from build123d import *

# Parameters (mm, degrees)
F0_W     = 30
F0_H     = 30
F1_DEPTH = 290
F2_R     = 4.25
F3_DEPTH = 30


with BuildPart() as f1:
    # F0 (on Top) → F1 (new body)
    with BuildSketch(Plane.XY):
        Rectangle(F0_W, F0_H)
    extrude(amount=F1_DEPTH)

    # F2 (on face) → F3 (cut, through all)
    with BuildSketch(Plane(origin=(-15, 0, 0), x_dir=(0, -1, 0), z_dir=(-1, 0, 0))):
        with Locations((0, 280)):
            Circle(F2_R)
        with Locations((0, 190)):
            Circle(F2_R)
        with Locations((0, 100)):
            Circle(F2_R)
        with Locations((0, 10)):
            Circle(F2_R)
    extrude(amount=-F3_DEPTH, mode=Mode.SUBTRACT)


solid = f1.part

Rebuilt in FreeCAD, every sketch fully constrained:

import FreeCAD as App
import Part
import Sketcher
from FreeCAD import Vector


def add_polygon(sketch, points):
    """Adds a closed chain of lines whose ends are joined by coincident constraints."""
    first, n = sketch.GeometryCount, len(points)
    for a, b in zip(points, points[1:] + points[:1]):
        sketch.addGeometry(Part.LineSegment(App.Vector(*a, 0), App.Vector(*b, 0)), False)
    for i in range(n):
        sketch.addConstraint(Sketcher.Constraint("Coincident", first + i, 2, first + (i + 1) % n, 1))

doc = App.newDocument("Part")
body = doc.addObject("PartDesign::Body", "Body")

# Sketch on XY plane
sketch1 = doc.addObject("Sketcher::SketchObject", "Sketch")
body.addObject(sketch1)
sketch1.AttachmentSupport = (doc.XY_Plane, [""])
sketch1.MapMode = "FlatFace"
add_polygon(sketch1, [(-15, 15), (-15, -15), (15, -15), (15, 15)])  # lines 0-3
sketch1.addConstraint(Sketcher.Constraint("Vertical", 0))
sketch1.addConstraint(Sketcher.Constraint("Horizontal", 1))
sketch1.addConstraint(Sketcher.Constraint("Vertical", 2))
sketch1.addConstraint(Sketcher.Constraint("Horizontal", 3))
sketch1.addConstraint(Sketcher.Constraint("Symmetric", 0, 2, 2, 2, -1, 1))
sketch1.addConstraint(Sketcher.Constraint("Equal", 3, 0))
sketch1.addConstraint(Sketcher.Constraint("DistanceX", 1, 1, 1, 2, 30.0))
pad1 = doc.addObject("PartDesign::Pad", "Pad")
body.addObject(pad1)
pad1.Profile = sketch1
pad1.Length = 290

# Sketch on YZ plane
sketch2 = doc.addObject("Sketcher::SketchObject", "Sketch001")
body.addObject(sketch2)
sketch2.AttachmentSupport = (doc.YZ_Plane, [""])
sketch2.MapMode = "FlatFace"
sketch2.AttachmentOffset = App.Placement(Vector(0, 0, -15), App.Rotation())
sketch2.addGeometry(Part.Circle(Vector(0, 280, 0), Vector(0, 0, 1), 4.25), False)
sketch2.addGeometry(Part.Circle(Vector(0, 190, 0), Vector(0, 0, 1), 4.25), False)
sketch2.addGeometry(Part.Circle(Vector(0, 100, 0), Vector(0, 0, 1), 4.25), False)
sketch2.addGeometry(Part.Circle(Vector(0, 10, 0), Vector(0, 0, 1), 4.25), False)
sketch2.addConstraint(Sketcher.Constraint("Equal", 0, 1))
sketch2.addConstraint(Sketcher.Constraint("Equal", 1, 2))
sketch2.addConstraint(Sketcher.Constraint("Equal", 2, 3))
sketch2.addConstraint(Sketcher.Constraint("PointOnObject", 0, 3, -2))
sketch2.addConstraint(Sketcher.Constraint("PointOnObject", 1, 3, -2))
sketch2.addConstraint(Sketcher.Constraint("PointOnObject", 2, 3, -2))
sketch2.addConstraint(Sketcher.Constraint("PointOnObject", 3, 3, -2))
sketch2.addConstraint(Sketcher.Constraint("Diameter", 0, 8.5))
sketch2.addConstraint(Sketcher.Constraint("DistanceY", -1, 1, 0, 3, 280.0))
sketch2.addConstraint(Sketcher.Constraint("DistanceY", -1, 1, 1, 3, 190.0))
sketch2.addConstraint(Sketcher.Constraint("DistanceY", -1, 1, 2, 3, 100.0))
sketch2.addConstraint(Sketcher.Constraint("DistanceY", -1, 1, 3, 3, 10.0))
pocket1 = doc.addObject("PartDesign::Pocket", "Pocket")
body.addObject(pocket1)
pocket1.Profile = sketch2
pocket1.Type = "ThroughAll"
pocket1.Reversed = True

doc.recompute()
